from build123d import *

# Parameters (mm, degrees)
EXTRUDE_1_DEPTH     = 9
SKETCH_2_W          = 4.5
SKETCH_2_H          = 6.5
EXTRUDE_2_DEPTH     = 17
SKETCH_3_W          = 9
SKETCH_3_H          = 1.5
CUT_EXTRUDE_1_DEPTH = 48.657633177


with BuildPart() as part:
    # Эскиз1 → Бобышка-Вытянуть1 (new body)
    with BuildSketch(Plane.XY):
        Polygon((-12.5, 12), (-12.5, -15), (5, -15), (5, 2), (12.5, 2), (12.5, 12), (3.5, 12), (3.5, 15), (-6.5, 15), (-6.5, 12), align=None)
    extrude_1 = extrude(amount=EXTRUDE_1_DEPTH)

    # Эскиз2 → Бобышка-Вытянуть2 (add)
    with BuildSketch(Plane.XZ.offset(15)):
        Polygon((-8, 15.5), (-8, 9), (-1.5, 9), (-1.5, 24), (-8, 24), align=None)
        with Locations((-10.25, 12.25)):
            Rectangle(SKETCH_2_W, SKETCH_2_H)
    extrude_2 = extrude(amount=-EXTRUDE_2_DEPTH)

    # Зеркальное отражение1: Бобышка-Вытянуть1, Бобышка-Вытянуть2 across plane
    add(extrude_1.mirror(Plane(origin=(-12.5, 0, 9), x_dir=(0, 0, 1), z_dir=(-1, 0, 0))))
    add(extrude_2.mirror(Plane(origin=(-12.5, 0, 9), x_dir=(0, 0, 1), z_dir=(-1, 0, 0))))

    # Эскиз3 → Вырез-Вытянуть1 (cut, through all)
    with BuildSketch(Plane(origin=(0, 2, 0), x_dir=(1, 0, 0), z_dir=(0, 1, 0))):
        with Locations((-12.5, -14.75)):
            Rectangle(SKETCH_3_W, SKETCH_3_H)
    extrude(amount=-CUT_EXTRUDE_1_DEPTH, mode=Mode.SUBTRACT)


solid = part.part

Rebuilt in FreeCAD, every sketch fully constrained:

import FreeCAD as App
import Part
import Sketcher
from FreeCAD import Vector
Q = App.Units.Quantity


def add_polygon(sketch, points):
    """Adds a closed chain of lines whose ends are joined by coincident constraints."""
    first, n = sketch.GeometryCount, len(points)
    for a, b in zip(points, points[1:] + points[:1]):
        sketch.addGeometry(Part.LineSegment(App.Vector(*a, 0), App.Vector(*b, 0)), False)
    for i in range(n):
        sketch.addConstraint(Sketcher.Constraint("Coincident", first + i, 2, first + (i + 1) % n, 1))

doc = App.newDocument("Part")
body = doc.addObject("PartDesign::Body", "Body")

# Sketch on XY plane
sketch1 = body.newObject("Sketcher::SketchObject", "Sketch")
sketch1.AttachmentSupport = (doc.getObject("XY_Plane"), [""])
sketch1.MapMode = "FlatFace"
add_polygon(sketch1, [(-12.5, 12), (-12.5, -15), (5, -15), (5, 2), (12.5, 2), (12.5, 12), (3.5, 12), (3.5, 15), (-6.5, 15), (-6.5, 12)])  # lines 0-9
sketch1.addConstraint([
    Sketcher.Constraint("Vertical", 0),
    Sketcher.Constraint("Horizontal", 1),
    Sketcher.Constraint("Vertical", 2),
    Sketcher.Constraint("Horizontal", 3),
    Sketcher.Constraint("Vertical", 4),
    Sketcher.Constraint("Horizontal", 5),
    Sketcher.Constraint("Vertical", 6),
    Sketcher.Constraint("Horizontal", 7),
    Sketcher.Constraint("Vertical", 8),
    Sketcher.Constraint("Horizontal", 9),
    Sketcher.Constraint("Symmetric", 4, 2, 9, 2, -2),
    Sketcher.Constraint("Equal", 7, 4),
    Sketcher.Constraint("DistanceX", 5, 2, 5, 1, Q("9 mm")),
    Sketcher.Constraint("DistanceX", 7, 2, 7, 1, Q("10 mm")),
    Sketcher.Constraint("DistanceX", 9, 2, 9, 1, Q("6 mm")),
    Sketcher.Constraint("DistanceY", 0, 2, 0, 1, Q("27 mm")),
    Sketcher.Constraint("DistanceY", 6, 1, 6, 2, Q("3 mm")),
    Sketcher.Constraint("DistanceX", 1, 1, 1, 2, Q("17.5 mm")),
    Sketcher.Constraint("DistanceY", 0, 2, -1, 1, Q("15 mm")),
])
pad1 = body.newObject("PartDesign::Pad", "Pad")
pad1.Profile = sketch1
pad1.Length = 9

# Sketch on XZ plane
sketch2 = body.newObject("Sketcher::SketchObject", "Sketch001")
sketch2.AttachmentSupport = (doc.getObject("XZ_Plane"), [""])
sketch2.MapMode = "FlatFace"
sketch2.AttachmentOffset = App.Placement(Vector(0, 0, 15), App.Rotation())
add_polygon(sketch2, [(-1.5, 9), (-1.5, 24), (-8, 24), (-8, 15.5), (-12.5, 15.5), (-12.5, 9)])  # lines 0-5
sketch2.addConstraint([
    Sketcher.Constraint("Vertical", 0),
    Sketcher.Constraint("Horizontal", 1),
    Sketcher.Constraint("Vertical", 2),
    Sketcher.Constraint("Horizontal", 3),
    Sketcher.Constraint("Vertical", 4),
    Sketcher.Constraint("Horizontal", 5),
    Sketcher.Constraint("Equal", 1, 4),
    Sketcher.Constraint("DistanceX", 5, 1, 5, 2, Q("11 mm")),
    Sketcher.Constraint("DistanceY", 0, 1, 0, 2, Q("15 mm")),
    Sketcher.Constraint("DistanceX", 1, 2, 1, 1, Q("6.5 mm")),
    Sketcher.Constraint("DistanceY", -1, 1, 0, 2, Q("24 mm")),
    Sketcher.Constraint("DistanceX", 1, 2, -1, 1, Q("8 mm")),
])
pad2 = body.newObject("PartDesign::Pad", "Pad001")
pad2.Profile = sketch2
pad2.Length = 17
pad2.Reversed = True
doc.recompute()

datumplane = body.newObject("PartDesign::Plane", "DatumPlane")
datumplane.AttachmentSupport = (doc.getObject("YZ_Plane"), [""])
datumplane.MapMode = "FlatFace"
datumplane.AttachmentOffset = App.Placement(Vector(0, 0, -12.5), App.Rotation())
mirrored = body.newObject("PartDesign::Mirrored", "Mirrored")
mirrored.Originals = [pad1, pad2]
mirrored.MirrorPlane = (datumplane, [""])
body.Tip = mirrored

# Sketch on XZ plane
sketch3 = body.newObject("Sketcher::SketchObject", "Sketch002")
sketch3.AttachmentSupport = (doc.getObject("XZ_Plane"), [""])
sketch3.MapMode = "FlatFace"
sketch3.AttachmentOffset = App.Placement(Vector(0, 0, -2), App.Rotation())
add_polygon(sketch3, [(-17, 14), (-17, 15.5), (-8, 15.5), (-8, 14)])  # lines 0-3
sketch3.addConstraint([
    Sketcher.Constraint("Vertical", 0),
    Sketcher.Constraint("Horizontal", 1),
    Sketcher.Constraint("Vertical", 2),
    Sketcher.Constraint("Horizontal", 3),
    Sketcher.Constraint("DistanceX", 1, 1, 1, 2, Q("9 mm")),
    Sketcher.Constraint("DistanceY", 0, 1, 0, 2, Q("1.5 mm")),
    Sketcher.Constraint("DistanceX", 0, 2, -1, 1, Q("17 mm")),
    Sketcher.Constraint("DistanceY", -1, 1, 2, 2, Q("14 mm")),
])
pocket1 = body.newObject("PartDesign::Pocket", "Pocket")
pocket1.Profile = sketch3
pocket1.Type = "ThroughAll"
pocket1.Reversed = True

doc.recompute()
